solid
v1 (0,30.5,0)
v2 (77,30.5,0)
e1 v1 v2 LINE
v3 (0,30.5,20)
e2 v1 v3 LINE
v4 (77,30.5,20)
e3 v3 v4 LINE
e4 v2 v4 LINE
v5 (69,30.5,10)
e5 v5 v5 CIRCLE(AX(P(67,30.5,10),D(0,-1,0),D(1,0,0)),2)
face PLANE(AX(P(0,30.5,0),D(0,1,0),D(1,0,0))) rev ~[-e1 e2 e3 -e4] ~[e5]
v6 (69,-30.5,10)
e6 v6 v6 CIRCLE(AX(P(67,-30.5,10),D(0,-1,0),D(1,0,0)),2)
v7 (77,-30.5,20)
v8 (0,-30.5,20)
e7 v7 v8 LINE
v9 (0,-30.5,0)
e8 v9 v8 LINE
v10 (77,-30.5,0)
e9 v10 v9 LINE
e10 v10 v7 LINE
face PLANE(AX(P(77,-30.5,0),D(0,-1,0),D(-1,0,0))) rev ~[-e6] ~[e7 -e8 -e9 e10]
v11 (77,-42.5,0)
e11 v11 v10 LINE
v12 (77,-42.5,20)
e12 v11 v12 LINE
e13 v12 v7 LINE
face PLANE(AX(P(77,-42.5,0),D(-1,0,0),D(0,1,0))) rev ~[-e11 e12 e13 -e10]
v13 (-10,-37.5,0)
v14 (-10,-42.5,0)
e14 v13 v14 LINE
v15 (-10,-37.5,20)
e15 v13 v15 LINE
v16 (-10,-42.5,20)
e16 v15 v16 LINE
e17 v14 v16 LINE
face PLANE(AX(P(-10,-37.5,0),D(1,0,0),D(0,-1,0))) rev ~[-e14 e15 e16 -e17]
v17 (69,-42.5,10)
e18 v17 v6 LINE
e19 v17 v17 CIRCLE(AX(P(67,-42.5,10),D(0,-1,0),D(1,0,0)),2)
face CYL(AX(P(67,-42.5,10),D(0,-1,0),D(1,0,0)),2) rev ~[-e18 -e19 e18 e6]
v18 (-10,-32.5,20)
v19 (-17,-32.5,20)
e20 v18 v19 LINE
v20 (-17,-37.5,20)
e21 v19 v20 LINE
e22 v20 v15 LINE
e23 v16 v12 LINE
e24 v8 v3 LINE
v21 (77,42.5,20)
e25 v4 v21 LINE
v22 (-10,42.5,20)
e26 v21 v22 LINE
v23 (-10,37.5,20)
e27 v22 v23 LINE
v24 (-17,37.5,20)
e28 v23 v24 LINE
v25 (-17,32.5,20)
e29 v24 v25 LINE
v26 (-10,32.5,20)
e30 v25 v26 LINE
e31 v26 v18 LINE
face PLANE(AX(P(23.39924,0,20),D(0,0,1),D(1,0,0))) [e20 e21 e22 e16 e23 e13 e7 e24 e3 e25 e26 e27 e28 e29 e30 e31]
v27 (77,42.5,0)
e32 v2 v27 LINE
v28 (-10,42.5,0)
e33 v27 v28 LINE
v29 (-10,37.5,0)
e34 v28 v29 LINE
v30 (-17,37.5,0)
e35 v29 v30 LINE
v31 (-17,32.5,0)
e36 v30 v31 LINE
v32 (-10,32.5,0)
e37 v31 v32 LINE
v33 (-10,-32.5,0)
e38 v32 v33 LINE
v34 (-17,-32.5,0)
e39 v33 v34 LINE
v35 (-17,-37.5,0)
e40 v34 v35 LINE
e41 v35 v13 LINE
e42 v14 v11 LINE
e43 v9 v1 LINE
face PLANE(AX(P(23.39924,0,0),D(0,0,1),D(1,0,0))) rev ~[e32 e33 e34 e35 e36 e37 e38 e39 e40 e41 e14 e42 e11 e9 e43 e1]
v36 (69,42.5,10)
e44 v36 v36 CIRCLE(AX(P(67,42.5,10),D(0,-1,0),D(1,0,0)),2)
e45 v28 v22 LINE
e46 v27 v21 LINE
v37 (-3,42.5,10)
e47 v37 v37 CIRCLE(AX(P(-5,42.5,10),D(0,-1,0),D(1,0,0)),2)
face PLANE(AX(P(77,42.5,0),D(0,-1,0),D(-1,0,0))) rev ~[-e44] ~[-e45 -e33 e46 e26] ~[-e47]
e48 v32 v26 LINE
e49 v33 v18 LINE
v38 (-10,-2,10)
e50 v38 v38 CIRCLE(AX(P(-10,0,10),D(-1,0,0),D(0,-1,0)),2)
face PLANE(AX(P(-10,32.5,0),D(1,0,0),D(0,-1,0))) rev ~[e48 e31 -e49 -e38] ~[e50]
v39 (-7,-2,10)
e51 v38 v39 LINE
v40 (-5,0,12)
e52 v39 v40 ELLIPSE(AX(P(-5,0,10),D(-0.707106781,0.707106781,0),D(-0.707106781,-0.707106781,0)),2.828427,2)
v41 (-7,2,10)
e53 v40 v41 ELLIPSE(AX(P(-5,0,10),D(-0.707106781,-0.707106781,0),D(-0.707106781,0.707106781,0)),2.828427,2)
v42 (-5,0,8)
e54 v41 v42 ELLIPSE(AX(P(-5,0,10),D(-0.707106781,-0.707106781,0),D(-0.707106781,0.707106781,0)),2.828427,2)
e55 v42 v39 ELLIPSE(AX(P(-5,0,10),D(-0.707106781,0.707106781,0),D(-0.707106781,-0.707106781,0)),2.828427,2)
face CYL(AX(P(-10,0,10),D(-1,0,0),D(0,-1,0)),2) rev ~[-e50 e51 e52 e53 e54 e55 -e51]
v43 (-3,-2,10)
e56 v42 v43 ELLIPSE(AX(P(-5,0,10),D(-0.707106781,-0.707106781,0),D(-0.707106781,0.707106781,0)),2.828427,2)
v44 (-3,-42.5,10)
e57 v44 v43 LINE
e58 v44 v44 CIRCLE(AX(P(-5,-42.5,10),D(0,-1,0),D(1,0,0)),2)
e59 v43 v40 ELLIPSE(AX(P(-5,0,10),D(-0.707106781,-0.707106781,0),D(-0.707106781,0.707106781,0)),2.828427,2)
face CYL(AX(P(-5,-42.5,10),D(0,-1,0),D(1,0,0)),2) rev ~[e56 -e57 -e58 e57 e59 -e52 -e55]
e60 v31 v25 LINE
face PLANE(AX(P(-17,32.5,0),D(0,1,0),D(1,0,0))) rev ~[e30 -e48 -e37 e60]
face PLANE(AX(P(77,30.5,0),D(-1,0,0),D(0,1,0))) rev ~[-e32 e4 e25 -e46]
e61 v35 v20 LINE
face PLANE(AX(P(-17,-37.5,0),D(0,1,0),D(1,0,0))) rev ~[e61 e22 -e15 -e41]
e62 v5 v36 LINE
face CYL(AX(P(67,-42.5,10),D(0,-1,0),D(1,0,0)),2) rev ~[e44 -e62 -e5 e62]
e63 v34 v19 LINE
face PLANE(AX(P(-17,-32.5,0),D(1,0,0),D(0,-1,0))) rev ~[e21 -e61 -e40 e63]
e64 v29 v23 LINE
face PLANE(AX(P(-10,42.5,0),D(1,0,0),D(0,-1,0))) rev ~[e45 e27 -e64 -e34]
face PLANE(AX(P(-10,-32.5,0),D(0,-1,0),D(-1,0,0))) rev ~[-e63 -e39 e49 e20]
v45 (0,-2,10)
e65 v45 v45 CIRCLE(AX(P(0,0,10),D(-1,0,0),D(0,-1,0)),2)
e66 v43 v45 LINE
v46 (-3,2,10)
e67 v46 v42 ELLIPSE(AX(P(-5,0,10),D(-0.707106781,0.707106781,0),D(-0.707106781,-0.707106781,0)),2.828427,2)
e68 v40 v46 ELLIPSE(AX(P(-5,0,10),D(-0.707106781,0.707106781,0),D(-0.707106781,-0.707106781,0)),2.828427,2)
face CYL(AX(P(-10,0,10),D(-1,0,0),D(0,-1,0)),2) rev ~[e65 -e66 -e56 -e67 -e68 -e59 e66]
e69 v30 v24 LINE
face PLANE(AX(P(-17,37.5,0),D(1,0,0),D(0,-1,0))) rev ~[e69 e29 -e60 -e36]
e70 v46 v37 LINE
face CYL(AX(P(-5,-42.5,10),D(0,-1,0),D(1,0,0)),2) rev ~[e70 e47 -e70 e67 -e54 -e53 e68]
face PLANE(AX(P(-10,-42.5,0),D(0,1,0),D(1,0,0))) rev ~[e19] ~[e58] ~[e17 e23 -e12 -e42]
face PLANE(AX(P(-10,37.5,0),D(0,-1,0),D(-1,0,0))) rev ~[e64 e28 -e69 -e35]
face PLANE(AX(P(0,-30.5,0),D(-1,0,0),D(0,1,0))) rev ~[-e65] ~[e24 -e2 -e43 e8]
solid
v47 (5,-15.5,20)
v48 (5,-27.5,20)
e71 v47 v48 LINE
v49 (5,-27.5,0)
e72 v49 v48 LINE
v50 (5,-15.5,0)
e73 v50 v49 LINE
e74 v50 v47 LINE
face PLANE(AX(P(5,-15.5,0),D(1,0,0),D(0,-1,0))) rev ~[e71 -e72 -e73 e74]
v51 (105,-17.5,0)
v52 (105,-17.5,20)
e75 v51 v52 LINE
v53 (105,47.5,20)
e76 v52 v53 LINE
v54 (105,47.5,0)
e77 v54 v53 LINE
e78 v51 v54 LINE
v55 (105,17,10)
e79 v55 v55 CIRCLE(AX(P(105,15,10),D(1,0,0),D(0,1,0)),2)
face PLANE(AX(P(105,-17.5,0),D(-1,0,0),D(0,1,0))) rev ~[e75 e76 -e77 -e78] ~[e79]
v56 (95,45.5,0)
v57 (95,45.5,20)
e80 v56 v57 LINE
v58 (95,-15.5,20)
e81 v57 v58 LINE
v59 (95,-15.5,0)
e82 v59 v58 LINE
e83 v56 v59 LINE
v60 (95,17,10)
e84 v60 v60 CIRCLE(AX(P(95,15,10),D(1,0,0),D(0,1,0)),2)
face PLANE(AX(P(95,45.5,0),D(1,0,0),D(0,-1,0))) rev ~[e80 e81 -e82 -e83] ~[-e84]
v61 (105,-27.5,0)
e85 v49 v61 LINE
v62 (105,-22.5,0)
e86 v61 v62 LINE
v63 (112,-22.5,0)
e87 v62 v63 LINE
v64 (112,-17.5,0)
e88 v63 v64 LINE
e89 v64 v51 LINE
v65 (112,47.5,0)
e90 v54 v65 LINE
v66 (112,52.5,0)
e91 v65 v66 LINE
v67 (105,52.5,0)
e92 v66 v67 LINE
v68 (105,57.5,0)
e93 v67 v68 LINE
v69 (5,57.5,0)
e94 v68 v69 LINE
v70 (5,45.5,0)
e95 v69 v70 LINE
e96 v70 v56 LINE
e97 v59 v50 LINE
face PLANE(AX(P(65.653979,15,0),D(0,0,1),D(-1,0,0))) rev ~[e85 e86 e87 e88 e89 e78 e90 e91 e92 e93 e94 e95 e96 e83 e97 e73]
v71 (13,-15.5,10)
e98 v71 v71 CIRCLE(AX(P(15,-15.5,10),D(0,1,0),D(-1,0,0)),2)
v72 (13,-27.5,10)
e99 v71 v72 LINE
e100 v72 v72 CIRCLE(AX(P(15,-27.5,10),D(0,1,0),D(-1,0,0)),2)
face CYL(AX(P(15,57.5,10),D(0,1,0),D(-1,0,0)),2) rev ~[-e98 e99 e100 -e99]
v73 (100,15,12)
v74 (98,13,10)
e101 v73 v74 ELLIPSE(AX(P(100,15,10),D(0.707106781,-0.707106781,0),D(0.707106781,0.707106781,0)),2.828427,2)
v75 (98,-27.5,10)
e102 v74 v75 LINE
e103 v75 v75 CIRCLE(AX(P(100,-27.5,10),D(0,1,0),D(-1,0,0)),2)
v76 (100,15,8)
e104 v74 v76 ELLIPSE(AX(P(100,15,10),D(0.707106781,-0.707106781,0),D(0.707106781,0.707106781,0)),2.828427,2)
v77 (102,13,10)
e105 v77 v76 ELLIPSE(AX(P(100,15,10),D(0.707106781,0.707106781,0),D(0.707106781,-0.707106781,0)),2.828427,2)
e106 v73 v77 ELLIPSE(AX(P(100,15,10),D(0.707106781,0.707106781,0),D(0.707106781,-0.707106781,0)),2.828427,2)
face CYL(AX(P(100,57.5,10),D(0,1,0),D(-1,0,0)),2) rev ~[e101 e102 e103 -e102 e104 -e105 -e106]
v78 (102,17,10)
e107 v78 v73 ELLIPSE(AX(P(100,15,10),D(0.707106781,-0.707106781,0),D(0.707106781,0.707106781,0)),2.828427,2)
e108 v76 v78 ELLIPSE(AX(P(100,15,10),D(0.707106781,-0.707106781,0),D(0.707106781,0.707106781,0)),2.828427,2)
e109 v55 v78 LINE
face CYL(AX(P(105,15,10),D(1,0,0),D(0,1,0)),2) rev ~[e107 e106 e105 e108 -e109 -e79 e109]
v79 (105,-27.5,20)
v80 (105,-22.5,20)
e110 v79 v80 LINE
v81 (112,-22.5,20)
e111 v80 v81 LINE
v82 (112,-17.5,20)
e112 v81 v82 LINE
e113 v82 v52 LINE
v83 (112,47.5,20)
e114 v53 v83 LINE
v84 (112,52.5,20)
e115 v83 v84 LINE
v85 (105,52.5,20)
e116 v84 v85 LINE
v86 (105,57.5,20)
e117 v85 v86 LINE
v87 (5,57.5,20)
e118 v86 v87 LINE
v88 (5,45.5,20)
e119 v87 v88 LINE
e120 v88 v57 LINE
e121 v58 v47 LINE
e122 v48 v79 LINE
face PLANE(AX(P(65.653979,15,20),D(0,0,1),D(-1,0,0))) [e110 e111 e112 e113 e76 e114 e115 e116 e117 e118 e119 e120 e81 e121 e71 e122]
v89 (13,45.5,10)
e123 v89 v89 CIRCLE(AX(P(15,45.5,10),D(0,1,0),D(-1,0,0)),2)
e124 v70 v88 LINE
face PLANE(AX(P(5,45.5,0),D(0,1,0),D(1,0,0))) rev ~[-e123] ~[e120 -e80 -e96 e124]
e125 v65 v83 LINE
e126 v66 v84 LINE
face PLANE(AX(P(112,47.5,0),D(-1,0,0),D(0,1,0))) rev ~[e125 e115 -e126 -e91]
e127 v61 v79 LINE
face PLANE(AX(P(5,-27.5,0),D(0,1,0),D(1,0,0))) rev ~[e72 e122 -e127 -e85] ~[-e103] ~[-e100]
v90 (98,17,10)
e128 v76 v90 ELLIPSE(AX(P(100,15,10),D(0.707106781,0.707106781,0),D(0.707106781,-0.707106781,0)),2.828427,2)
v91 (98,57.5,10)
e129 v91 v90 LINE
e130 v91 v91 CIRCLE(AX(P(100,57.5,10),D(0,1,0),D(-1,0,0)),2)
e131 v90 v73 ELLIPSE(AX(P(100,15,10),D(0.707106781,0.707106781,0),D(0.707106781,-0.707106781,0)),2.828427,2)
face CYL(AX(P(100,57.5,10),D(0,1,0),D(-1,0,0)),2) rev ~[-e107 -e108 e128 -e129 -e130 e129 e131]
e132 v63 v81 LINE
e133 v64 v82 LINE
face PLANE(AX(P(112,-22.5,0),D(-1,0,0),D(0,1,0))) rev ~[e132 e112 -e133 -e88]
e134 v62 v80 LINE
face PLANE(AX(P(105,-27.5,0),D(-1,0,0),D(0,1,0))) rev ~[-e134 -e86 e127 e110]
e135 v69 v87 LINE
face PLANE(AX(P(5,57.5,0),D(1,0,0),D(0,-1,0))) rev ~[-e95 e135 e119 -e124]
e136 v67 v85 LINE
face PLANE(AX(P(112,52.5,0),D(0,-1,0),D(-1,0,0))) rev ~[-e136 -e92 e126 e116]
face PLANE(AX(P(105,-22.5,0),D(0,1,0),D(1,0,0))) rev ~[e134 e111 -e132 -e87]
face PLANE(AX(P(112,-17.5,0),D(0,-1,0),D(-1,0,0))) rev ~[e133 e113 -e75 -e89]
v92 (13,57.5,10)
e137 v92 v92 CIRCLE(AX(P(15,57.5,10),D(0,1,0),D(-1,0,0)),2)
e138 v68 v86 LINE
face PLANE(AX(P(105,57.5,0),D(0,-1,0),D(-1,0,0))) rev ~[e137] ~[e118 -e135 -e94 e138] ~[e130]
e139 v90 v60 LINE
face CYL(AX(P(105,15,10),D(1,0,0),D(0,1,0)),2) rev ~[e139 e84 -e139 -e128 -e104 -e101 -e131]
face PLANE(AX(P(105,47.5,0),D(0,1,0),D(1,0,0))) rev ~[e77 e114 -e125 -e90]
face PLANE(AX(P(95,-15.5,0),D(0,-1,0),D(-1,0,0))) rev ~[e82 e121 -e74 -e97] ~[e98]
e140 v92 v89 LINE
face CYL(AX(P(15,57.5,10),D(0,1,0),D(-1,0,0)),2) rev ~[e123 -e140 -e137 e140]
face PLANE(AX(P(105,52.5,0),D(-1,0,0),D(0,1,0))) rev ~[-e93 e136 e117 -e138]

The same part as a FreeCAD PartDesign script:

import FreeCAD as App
import Part
import Sketcher
Q = App.Units.Quantity

doc = App.newDocument("Part")
body = doc.addObject("PartDesign::Body", "Body")

# Sketch on XY plane
sketch1 = body.newObject("Sketcher::SketchObject", "Sketch")
sketch1.AttachmentSupport = (doc.getObject("XY_Plane"), [""])
sketch1.MapMode = "FlatFace"
sketch1.addGeometry([
    Part.LineSegment(App.Vector(-10, -42, 0), App.Vector(77, -42, 0)),  # 0
    Part.LineSegment(App.Vector(77, -42, 0), App.Vector(77, -30, 0)),  # 1
    Part.LineSegment(App.Vector(77, -30, 0), App.Vector(0, -30, 0)),  # 2
    Part.LineSegment(App.Vector(0, -30, 0), App.Vector(0, 30, 0)),  # 3
    Part.LineSegment(App.Vector(0, 30, 0), App.Vector(77, 30, 0)),  # 4
    Part.LineSegment(App.Vector(77, 30, 0), App.Vector(77, 42, 0)),  # 5
    Part.LineSegment(App.Vector(77, 42, 0), App.Vector(-10, 42, 0)),  # 6
    Part.LineSegment(App.Vector(-10, 42, 0), App.Vector(-10, 38, 0)),  # 7
    Part.LineSegment(App.Vector(-10, 38, 0), App.Vector(-17, 38, 0)),  # 8
    Part.LineSegment(App.Vector(-17, 38, 0), App.Vector(-17, 32, 0)),  # 9
    Part.LineSegment(App.Vector(-17, 32, 0), App.Vector(-10, 32, 0)),  # 10
    Part.LineSegment(App.Vector(-10, 32, 0), App.Vector(-10, -32, 0)),  # 11
    Part.LineSegment(App.Vector(-10, -32, 0), App.Vector(-17, -32, 0)),  # 12
    Part.LineSegment(App.Vector(-17, -32, 0), App.Vector(-17, -38, 0)),  # 13
    Part.LineSegment(App.Vector(-17, -38, 0), App.Vector(-10, -38, 0)),  # 14
    Part.LineSegment(App.Vector(-10, -38, 0), App.Vector(-10, -42, 0)),  # 15
], False)
sketch1.addConstraint([
    Sketcher.Constraint("Coincident", 0, 2, 1, 1),
    Sketcher.Constraint("Coincident", 1, 2, 2, 1),
    Sketcher.Constraint("Coincident", 2, 2, 3, 1),
    Sketcher.Constraint("Coincident", 3, 2, 4, 1),
    Sketcher.Constraint("Coincident", 4, 2, 5, 1),
    Sketcher.Constraint("Coincident", 5, 2, 6, 1),
    Sketcher.Constraint("Coincident", 6, 2, 7, 1),
    Sketcher.Constraint("Coincident", 7, 2, 8, 1),
    Sketcher.Constraint("Coincident", 8, 2, 9, 1),
    Sketcher.Constraint("Coincident", 9, 2, 10, 1),
    Sketcher.Constraint("Coincident", 10, 2, 11, 1),
    Sketcher.Constraint("Coincident", 11, 2, 12, 1),
    Sketcher.Constraint("Coincident", 12, 2, 13, 1),
    Sketcher.Constraint("Coincident", 13, 2, 14, 1),
    Sketcher.Constraint("Coincident", 14, 2, 15, 1),
    Sketcher.Constraint("Coincident", 15, 2, 0, 1),
    Sketcher.Constraint("Horizontal", 0),
    Sketcher.Constraint("Vertical", 1),
    Sketcher.Constraint("Horizontal", 2),
    Sketcher.Constraint("Vertical", 3),
    Sketcher.Constraint("Horizontal", 4),
    Sketcher.Constraint("Vertical", 5),
    Sketcher.Constraint("Horizontal", 6),
    Sketcher.Constraint("Vertical", 7),
    Sketcher.Constraint("Horizontal", 8),
    Sketcher.Constraint("Vertical", 9),
    Sketcher.Constraint("Horizontal", 10),
    Sketcher.Constraint("Vertical", 11),
    Sketcher.Constraint("Horizontal", 12),
    Sketcher.Constraint("Vertical", 13),
    Sketcher.Constraint("Horizontal", 14),
    Sketcher.Constraint("Vertical", 15),
    Sketcher.Constraint("Symmetric", 2, 2, 3, 2, -1, 1),
    Sketcher.Constraint("Symmetric", 0, 2, 5, 2, -1),
    Sketcher.Constraint("Symmetric", 9, 2, 12, 2, -1),
    Sketcher.Constraint("Symmetric", 7, 2, 14, 2, -1),
    Sketcher.Constraint("Vertical", 7, 2, 10, 2),
    Sketcher.Constraint("Equal", 7, 9),
    Sketcher.Constraint("DistanceX", 0, 1, 0, 2, Q("87 mm")),
    Sketcher.Constraint("DistanceX", 2, 2, 2, 1, Q("77 mm")),
    Sketcher.Constraint("DistanceX", 8, 2, 8, 1, Q("7 mm")),
    Sketcher.Constraint("DistanceY", 1, 1, 1, 2, Q("12 mm")),
    Sketcher.Constraint("DistanceY", 3, 1, 3, 2, Q("61 mm")),
    Sketcher.Constraint("DistanceY", 7, 2, 7, 1, Q("5 mm")),
])
pad1 = body.newObject("PartDesign::Pad", "Pad")
pad1.Profile = sketch1
pad1.Length = 20

# Sketch on YZ plane
sketch2 = body.newObject("Sketcher::SketchObject", "Sketch001")
sketch2.AttachmentSupport = (doc.getObject("YZ_Plane"), [""])
sketch2.MapMode = "FlatFace"
sketch2.AttachmentOffset = App.Placement(App.Vector(0, 0, -10), App.Rotation())
sketch2.addGeometry(Part.Circle(App.Vector(0, 10, 0), App.Vector(0, 0, 1), 2), False)
sketch2.addConstraint([
    Sketcher.Constraint("PointOnObject", 0, 3, -2),
    Sketcher.Constraint("Diameter", 0, Q("4 mm")),
    Sketcher.Constraint("DistanceY", -1, 1, 0, 3, Q("10 mm")),
])
pocket1 = body.newObject("PartDesign::Pocket", "Pocket")
pocket1.Profile = sketch2
pocket1.Type = "ThroughAll"
pocket1.Reversed = True

# Sketch on XZ plane
sketch3 = body.newObject("Sketcher::SketchObject", "Sketch002")
sketch3.AttachmentSupport = (doc.getObject("XZ_Plane"), [""])
sketch3.MapMode = "FlatFace"
sketch3.AttachmentOffset = App.Placement(App.Vector(0, 0, 42.5), App.Rotation())
sketch3.addGeometry([
    Part.Circle(App.Vector(-5, 10, 0), App.Vector(0, 0, 1), 2),
    Part.Circle(App.Vector(67, 10, 0), App.Vector(0, 0, 1), 2),
], False)
sketch3.addConstraint([
    Sketcher.Constraint("Equal", 0, 1),
    Sketcher.Constraint("Horizontal", 0, 3, 1, 3),
    Sketcher.Constraint("Diameter", 0, Q("4 mm")),
    Sketcher.Constraint("DistanceX", 0, 3, -1, 1, Q("5 mm")),
    Sketcher.Constraint("DistanceY", -1, 1, 0, 3, Q("10 mm")),
    Sketcher.Constraint("DistanceX", -1, 1, 1, 3, Q("67 mm")),
])
pocket2 = body.newObject("PartDesign::Pocket", "Pocket001")
pocket2.Profile = sketch3
pocket2.Type = "ThroughAll"
body2 = doc.addObject("PartDesign::Body", "Body001")

# Sketch on XY plane
sketch4 = body2.newObject("Sketcher::SketchObject", "Sketch003")
sketch4.AttachmentSupport = (doc.getObject("XY_Plane001"), [""])
sketch4.MapMode = "FlatFace"
sketch4.addGeometry([
    Part.LineSegment(App.Vector(105, 58, 0), App.Vector(5, 58, 0)),  # 0
    Part.LineSegment(App.Vector(5, 58, 0), App.Vector(5, 46, 0)),  # 1
    Part.LineSegment(App.Vector(5, 46, 0), App.Vector(95, 46, 0)),  # 2
    Part.LineSegment(App.Vector(95, 46, 0), App.Vector(95, -16, 0)),  # 3
    Part.LineSegment(App.Vector(95, -16, 0), App.Vector(5, -16, 0)),  # 4
    Part.LineSegment(App.Vector(5, -16, 0), App.Vector(5, -28, 0)),  # 5
    Part.LineSegment(App.Vector(5, -28, 0), App.Vector(105, -28, 0)),  # 6
    Part.LineSegment(App.Vector(105, -28, 0), App.Vector(105, -22, 0)),  # 7
    Part.LineSegment(App.Vector(105, -22, 0), App.Vector(112, -22, 0)),  # 8
    Part.LineSegment(App.Vector(112, -22, 0), App.Vector(112, -18, 0)),  # 9
    Part.LineSegment(App.Vector(112, -18, 0), App.Vector(105, -18, 0)),  # 10
    Part.LineSegment(App.Vector(105, -18, 0), App.Vector(105, 48, 0)),  # 11
    Part.LineSegment(App.Vector(105, 48, 0), App.Vector(112, 48, 0)),  # 12
    Part.LineSegment(App.Vector(112, 48, 0), App.Vector(112, 52, 0)),  # 13
    Part.LineSegment(App.Vector(112, 52, 0), App.Vector(105, 52, 0)),  # 14
    Part.LineSegment(App.Vector(105, 52, 0), App.Vector(105, 58, 0)),  # 15
], False)
sketch4.addConstraint([
    Sketcher.Constraint("Coincident", 0, 2, 1, 1),
    Sketcher.Constraint("Coincident", 1, 2, 2, 1),
    Sketcher.Constraint("Coincident", 2, 2, 3, 1),
    Sketcher.Constraint("Coincident", 3, 2, 4, 1),
    Sketcher.Constraint("Coincident", 4, 2, 5, 1),
    Sketcher.Constraint("Coincident", 5, 2, 6, 1),
    Sketcher.Constraint("Coincident", 6, 2, 7, 1),
    Sketcher.Constraint("Coincident", 7, 2, 8, 1),
    Sketcher.Constraint("Coincident", 8, 2, 9, 1),
    Sketcher.Constraint("Coincident", 9, 2, 10, 1),
    Sketcher.Constraint("Coincident", 10, 2, 11, 1),
    Sketcher.Constraint("Coincident", 11, 2, 12, 1),
    Sketcher.Constraint("Coincident", 12, 2, 13, 1),
    Sketcher.Constraint("Coincident", 13, 2, 14, 1),
    Sketcher.Constraint("Coincident", 14, 2, 15, 1),
    Sketcher.Constraint("Coincident", 15, 2, 0, 1),
    Sketcher.Constraint("Horizontal", 0),
    Sketcher.Constraint("Vertical", 1),
    Sketcher.Constraint("Horizontal", 2),
    Sketcher.Constraint("Vertical", 3),
    Sketcher.Constraint("Horizontal", 4),
    Sketcher.Constraint("Vertical", 5),
    Sketcher.Constraint("Horizontal", 6),
    Sketcher.Constraint("Vertical", 7),
    Sketcher.Constraint("Horizontal", 8),
    Sketcher.Constraint("Vertical", 9),
    Sketcher.Constraint("Horizontal", 10),
    Sketcher.Constraint("Vertical", 11),
    Sketcher.Constraint("Horizontal", 12),
    Sketcher.Constraint("Vertical", 13),
    Sketcher.Constraint("Horizontal", 14),
    Sketcher.Constraint("Vertical", 15),
    Sketcher.Constraint("Vertical", 1, 2, 4, 2),
    Sketcher.Constraint("Vertical", 7, 2, 10, 2),
    Sketcher.Constraint("Vertical", 9, 2, 12, 2),
    Sketcher.Constraint("Vertical", 11, 2, 14, 2),
    Sketcher.Constraint("Equal", 1, 5),
    Sketcher.Constraint("Equal", 7, 9),
    Sketcher.Constraint("Equal", 9, 13),
    Sketcher.Constraint("Equal", 13, 15),
    Sketcher.Constraint("DistanceX", 0, 2, 0, 1, Q("100 mm")),
    Sketcher.Constraint("DistanceX", 2, 1, 2, 2, Q("90 mm")),
    Sketcher.Constraint("DistanceX", 8, 1, 8, 2, Q("7 mm")),
    Sketcher.Constraint("DistanceY", 1, 2, 1, 1, Q("12 mm")),
    Sketcher.Constraint("DistanceY", 3, 2, 3, 1, Q("61 mm")),
    Sketcher.Constraint("DistanceY", 7, 1, 7, 2, Q("5 mm")),
    Sketcher.Constraint("DistanceX", -1, 1, 0, 2, Q("5 mm")),
    Sketcher.Constraint("DistanceY", -1, 1, 0, 2, Q("57.5 mm")),
])
pad2 = body2.newObject("PartDesign::Pad", "Pad001")
pad2.Profile = sketch4
pad2.Length = 20

# Sketch on YZ plane
sketch5 = body2.newObject("Sketcher::SketchObject", "Sketch004")
sketch5.AttachmentSupport = (doc.getObject("YZ_Plane001"), [""])
sketch5.MapMode = "FlatFace"
sketch5.AttachmentOffset = App.Placement(App.Vector(0, 0, 105), App.Rotation())
sketch5.addGeometry(Part.Circle(App.Vector(15, 10, 0), App.Vector(0, 0, 1), 2), False)
sketch5.addConstraint([
    Sketcher.Constraint("Diameter", 0, Q("4 mm")),
    Sketcher.Constraint("DistanceX", -1, 1, 0, 3, Q("15 mm")),
    Sketcher.Constraint("DistanceY", -1, 1, 0, 3, Q("10 mm")),
])
pocket3 = body2.newObject("PartDesign::Pocket", "Pocket002")
pocket3.Profile = sketch5
pocket3.Type = "ThroughAll"

# Sketch on XZ plane
sketch6 = body2.newObject("Sketcher::SketchObject", "Sketch005")
sketch6.AttachmentSupport = (doc.getObject("XZ_Plane001"), [""])
sketch6.MapMode = "FlatFace"
sketch6.AttachmentOffset = App.Placement(App.Vector(0, 0, -57.5), App.Rotation())
sketch6.addGeometry([
    Part.Circle(App.Vector(100, 10, 0), App.Vector(0, 0, 1), 2),
    Part.Circle(App.Vector(15, 10, 0), App.Vector(0, 0, 1), 2),
], False)
sketch6.addConstraint([
    Sketcher.Constraint("Equal", 0, 1),
    Sketcher.Constraint("Horizontal", 0, 3, 1, 3),
    Sketcher.Constraint("Diameter", 0, Q("4 mm")),
    Sketcher.Constraint("DistanceX", -1, 1, 0, 3, Q("100 mm")),
    Sketcher.Constraint("DistanceY", -1, 1, 0, 3, Q("10 mm")),
    Sketcher.Constraint("DistanceX", -1, 1, 1, 3, Q("15 mm")),
])
pocket4 = body2.newObject("PartDesign::Pocket", "Pocket003")
pocket4.Profile = sketch6
pocket4.Type = "ThroughAll"
pocket4.Reversed = True

doc.recompute()
